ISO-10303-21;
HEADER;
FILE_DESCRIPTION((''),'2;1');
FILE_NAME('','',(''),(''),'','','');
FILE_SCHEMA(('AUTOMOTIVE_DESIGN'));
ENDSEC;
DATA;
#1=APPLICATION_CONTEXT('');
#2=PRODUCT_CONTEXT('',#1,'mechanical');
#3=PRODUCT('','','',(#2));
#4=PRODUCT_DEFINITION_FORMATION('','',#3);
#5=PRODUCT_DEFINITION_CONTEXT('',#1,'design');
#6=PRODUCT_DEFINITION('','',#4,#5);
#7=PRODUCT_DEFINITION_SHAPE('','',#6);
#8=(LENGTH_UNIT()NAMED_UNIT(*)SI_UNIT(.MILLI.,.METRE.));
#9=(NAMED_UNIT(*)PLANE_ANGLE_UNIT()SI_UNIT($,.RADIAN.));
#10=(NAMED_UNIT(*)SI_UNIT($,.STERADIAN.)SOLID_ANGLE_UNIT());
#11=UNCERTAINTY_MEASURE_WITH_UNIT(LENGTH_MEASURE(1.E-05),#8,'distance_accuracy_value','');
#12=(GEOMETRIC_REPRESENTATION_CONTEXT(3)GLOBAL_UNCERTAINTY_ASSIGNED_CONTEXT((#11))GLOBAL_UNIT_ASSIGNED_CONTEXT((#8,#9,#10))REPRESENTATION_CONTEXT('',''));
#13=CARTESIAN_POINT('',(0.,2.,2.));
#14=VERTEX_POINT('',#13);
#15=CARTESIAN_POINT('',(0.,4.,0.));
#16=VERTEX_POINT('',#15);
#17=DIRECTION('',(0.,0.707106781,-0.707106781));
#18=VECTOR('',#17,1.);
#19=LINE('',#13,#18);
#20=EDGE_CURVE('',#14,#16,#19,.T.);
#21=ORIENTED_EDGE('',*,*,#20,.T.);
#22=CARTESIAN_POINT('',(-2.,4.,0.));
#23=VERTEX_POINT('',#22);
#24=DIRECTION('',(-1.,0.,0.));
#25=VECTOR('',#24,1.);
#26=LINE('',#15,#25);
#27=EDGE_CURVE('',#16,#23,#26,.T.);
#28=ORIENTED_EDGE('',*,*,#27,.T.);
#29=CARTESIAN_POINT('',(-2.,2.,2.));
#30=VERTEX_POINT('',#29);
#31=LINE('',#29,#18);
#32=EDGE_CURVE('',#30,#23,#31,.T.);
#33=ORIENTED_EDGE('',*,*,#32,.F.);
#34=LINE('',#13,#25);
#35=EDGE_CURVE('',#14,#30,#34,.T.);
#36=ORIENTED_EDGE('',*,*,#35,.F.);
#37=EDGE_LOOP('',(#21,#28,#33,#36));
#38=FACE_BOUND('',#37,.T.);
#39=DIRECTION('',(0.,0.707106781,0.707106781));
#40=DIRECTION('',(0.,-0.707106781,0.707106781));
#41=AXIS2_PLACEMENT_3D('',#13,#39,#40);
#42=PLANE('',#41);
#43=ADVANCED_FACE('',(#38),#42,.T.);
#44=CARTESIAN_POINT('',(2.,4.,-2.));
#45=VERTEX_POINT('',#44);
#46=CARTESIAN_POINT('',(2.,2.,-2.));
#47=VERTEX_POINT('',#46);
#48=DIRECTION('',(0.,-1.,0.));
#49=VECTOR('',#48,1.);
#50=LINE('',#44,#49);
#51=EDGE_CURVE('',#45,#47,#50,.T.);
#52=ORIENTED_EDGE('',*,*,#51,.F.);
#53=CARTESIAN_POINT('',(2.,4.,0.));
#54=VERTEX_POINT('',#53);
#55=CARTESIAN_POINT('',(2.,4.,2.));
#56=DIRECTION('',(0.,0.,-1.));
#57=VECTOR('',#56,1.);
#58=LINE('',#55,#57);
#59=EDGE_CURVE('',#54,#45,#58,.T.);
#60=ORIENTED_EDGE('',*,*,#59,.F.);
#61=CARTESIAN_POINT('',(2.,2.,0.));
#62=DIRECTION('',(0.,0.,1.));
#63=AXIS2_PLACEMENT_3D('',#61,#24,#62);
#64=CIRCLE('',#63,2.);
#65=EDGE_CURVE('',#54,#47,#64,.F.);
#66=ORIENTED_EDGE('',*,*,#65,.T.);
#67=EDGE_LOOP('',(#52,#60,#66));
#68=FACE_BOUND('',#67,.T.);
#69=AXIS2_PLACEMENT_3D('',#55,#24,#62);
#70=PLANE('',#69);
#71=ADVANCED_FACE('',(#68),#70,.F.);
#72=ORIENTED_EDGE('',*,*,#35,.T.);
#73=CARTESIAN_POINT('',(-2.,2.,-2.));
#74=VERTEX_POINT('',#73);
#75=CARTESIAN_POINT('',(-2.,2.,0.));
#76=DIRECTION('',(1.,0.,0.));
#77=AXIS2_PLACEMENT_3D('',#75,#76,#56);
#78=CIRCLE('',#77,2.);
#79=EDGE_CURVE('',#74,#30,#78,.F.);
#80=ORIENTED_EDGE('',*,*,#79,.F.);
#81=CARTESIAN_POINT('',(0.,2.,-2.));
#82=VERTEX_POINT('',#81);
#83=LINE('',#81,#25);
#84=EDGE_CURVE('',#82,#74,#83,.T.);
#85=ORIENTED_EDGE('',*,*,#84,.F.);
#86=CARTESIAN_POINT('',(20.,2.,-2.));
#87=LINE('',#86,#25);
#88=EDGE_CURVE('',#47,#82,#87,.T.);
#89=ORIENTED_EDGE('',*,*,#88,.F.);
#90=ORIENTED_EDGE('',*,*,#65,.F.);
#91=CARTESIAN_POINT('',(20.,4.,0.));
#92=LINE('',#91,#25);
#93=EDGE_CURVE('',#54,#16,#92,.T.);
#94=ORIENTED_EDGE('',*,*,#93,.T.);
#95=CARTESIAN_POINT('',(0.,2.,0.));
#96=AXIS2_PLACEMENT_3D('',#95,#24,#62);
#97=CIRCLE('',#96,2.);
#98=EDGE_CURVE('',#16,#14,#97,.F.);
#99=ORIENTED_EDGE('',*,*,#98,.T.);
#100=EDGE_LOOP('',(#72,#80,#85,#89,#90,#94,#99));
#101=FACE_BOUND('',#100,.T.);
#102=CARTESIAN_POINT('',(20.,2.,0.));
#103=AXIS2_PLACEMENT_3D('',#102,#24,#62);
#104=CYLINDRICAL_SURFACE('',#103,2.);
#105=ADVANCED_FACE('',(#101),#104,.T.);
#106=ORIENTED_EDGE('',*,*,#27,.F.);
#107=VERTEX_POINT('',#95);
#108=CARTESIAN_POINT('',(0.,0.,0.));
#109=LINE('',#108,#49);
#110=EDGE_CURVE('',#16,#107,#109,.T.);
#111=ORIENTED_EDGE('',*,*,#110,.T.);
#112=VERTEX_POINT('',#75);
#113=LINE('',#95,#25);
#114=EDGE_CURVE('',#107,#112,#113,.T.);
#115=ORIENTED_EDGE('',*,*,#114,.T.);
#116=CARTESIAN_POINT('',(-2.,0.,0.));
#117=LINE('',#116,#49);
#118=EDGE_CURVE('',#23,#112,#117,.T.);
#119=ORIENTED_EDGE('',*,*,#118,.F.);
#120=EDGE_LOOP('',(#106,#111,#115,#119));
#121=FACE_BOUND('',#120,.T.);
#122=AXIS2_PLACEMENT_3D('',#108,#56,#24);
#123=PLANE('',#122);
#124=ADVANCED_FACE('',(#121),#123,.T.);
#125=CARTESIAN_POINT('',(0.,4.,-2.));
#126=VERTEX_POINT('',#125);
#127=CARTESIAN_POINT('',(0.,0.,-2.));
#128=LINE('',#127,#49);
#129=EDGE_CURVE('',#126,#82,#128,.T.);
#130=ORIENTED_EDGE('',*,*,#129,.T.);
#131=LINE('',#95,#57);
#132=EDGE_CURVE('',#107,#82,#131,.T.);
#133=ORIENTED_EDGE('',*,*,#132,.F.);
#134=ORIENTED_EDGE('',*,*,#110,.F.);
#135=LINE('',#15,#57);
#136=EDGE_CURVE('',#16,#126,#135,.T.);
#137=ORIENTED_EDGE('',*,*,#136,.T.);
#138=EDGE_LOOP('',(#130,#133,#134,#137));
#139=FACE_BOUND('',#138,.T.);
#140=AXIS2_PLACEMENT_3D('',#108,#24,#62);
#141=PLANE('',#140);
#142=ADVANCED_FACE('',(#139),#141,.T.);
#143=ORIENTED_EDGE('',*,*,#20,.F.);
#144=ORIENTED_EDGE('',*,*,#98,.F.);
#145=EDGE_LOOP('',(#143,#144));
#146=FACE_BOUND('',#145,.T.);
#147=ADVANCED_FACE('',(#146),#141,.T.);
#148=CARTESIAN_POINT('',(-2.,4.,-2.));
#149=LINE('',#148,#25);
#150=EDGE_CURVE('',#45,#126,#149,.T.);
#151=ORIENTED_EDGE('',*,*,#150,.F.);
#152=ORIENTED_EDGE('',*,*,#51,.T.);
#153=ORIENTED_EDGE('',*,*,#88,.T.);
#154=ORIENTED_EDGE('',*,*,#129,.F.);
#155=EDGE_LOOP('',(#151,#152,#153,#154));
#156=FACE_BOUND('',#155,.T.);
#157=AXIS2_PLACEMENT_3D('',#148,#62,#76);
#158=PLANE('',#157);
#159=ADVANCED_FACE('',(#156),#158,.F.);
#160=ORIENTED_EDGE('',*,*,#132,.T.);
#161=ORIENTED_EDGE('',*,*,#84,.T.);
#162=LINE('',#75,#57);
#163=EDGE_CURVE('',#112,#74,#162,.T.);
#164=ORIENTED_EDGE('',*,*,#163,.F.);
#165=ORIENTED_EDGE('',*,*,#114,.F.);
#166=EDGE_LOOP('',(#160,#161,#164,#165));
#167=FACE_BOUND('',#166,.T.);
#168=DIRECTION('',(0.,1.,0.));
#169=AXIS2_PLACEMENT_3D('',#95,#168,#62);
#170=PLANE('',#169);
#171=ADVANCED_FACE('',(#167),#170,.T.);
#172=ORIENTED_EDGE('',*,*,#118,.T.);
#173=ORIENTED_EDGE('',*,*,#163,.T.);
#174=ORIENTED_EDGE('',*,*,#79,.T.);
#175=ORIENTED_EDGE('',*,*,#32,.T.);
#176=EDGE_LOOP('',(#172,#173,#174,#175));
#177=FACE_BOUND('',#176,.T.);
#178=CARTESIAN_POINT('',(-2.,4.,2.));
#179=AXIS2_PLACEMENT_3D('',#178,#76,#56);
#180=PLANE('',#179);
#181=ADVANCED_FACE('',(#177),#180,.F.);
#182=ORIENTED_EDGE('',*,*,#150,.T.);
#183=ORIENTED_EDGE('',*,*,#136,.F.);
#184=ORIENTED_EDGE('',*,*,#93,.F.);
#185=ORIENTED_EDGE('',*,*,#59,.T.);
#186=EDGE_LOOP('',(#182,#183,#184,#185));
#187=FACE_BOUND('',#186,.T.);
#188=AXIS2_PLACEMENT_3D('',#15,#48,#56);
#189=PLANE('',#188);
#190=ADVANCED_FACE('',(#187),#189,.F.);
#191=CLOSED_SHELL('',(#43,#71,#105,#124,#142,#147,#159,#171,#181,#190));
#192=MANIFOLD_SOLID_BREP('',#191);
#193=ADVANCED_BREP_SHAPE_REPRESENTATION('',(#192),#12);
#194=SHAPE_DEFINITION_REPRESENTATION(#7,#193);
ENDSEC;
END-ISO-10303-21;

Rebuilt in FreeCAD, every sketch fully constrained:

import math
import FreeCAD as App
import Part
import Sketcher

V = App.Vector
Q = App.Units.Quantity


def add_polygon(sketch, points):
    """Adds a closed chain of lines whose ends are joined by coincident constraints."""
    first, n = sketch.GeometryCount, len(points)
    for a, b in zip(points, points[1:] + points[:1]):
        sketch.addGeometry(Part.LineSegment(App.Vector(*a, 0), App.Vector(*b, 0)), False)
    for i in range(n):
        sketch.addConstraint(Sketcher.Constraint("Coincident", first + i, 2, first + (i + 1) % n, 1))

doc = App.newDocument("Part")
body = doc.addObject("PartDesign::Body", "Body")

# Sketch on XZ plane
sketch1 = body.newObject("Sketcher::SketchObject", "Sketch")
sketch1.AttachmentSupport = (doc.getObject("XZ_Plane"), [""])
sketch1.MapMode = "FlatFace"
add_polygon(sketch1, [(-2, -2), (-2, 2), (2, 2), (2, -2)])  # lines 0-3
sketch1.addConstraint(Sketcher.Constraint("Vertical", 0))
sketch1.addConstraint(Sketcher.Constraint("Horizontal", 1))
sketch1.addConstraint(Sketcher.Constraint("Vertical", 2))
sketch1.addConstraint(Sketcher.Constraint("Horizontal", 3))
sketch1.addConstraint(Sketcher.Constraint("Symmetric", 0, 2, 2, 2, -1, 1))
sketch1.addConstraint(Sketcher.Constraint("Equal", 3, 0))
sketch1.addConstraint(Sketcher.Constraint("DistanceX", 1, 1, 1, 2, Q("4 mm")))
pad1 = body.newObject("PartDesign::Pad", "Pad")
pad1.Profile = sketch1
pad1.Length = 4
pad1.Reversed = True

# Sketch on YZ plane
sketch2 = body.newObject("Sketcher::SketchObject", "Sketch001")
sketch2.AttachmentSupport = (doc.getObject("YZ_Plane"), [""])
sketch2.MapMode = "FlatFace"
sketch2.AttachmentOffset = App.Placement(V(0, 0, -2), App.Rotation())
add_polygon(sketch2, [(4, 0), (2, 2), (4, 2)])  # lines 0-2
add_polygon(sketch2, [(4, -2), (2, -2), (2, 0), (4, 0)])  # lines 3-6
sketch2.addConstraint(Sketcher.Constraint("Horizontal", 1))
sketch2.addConstraint(Sketcher.Constraint("Vertical", 2))
sketch2.addConstraint(Sketcher.Constraint("Horizontal", 3))
sketch2.addConstraint(Sketcher.Constraint("Vertical", 4))
sketch2.addConstraint(Sketcher.Constraint("Horizontal", 5))
sketch2.addConstraint(Sketcher.Constraint("Vertical", 6))
sketch2.addConstraint(Sketcher.Constraint("Coincident", 5, 2, 2, 2))
sketch2.addConstraint(Sketcher.Constraint("Symmetric", 0, 2, 3, 2, -1))
sketch2.addConstraint(Sketcher.Constraint("PointOnObject", 2, 2, -1))
sketch2.addConstraint(Sketcher.Constraint("Equal", 5, 2))
sketch2.addConstraint(Sketcher.Constraint("DistanceX", 1, 1, 1, 2, Q("2 mm")))
sketch2.addConstraint(Sketcher.Constraint("DistanceX", -1, 1, 0, 2, Q("2 mm")))
pocket1 = body.newObject("PartDesign::Pocket", "Pocket")
pocket1.Profile = sketch2
pocket1.Length = 2
pocket1.Reversed = True

# Sketch on YZ plane
sketch3 = body.newObject("Sketcher::SketchObject", "Sketch002")
sketch3.AttachmentSupport = (doc.getObject("YZ_Plane"), [""])
sketch3.MapMode = "FlatFace"
sketch3.addGeometry(Part.LineSegment(V(4, 2, 0), V(4, 0, 0)), False)
sketch3.addGeometry(Part.ArcOfCircle(Part.Circle(V(2, 0, 0), V(0, 0, 1), 2), math.radians(0), math.radians(90)), False)
sketch3.addGeometry(Part.LineSegment(V(2, 2, 0), V(4, 2, 0)), False)
sketch3.addGeometry(Part.LineSegment(V(0, 2, 0), V(2, 2, 0)), False)
sketch3.addGeometry(Part.ArcOfCircle(Part.Circle(V(2, 0, 0), V(0, 0, 1), 2), math.radians(90), math.radians(180)), False)
sketch3.addGeometry(Part.LineSegment(V(0, 0, 0), V(0, 2, 0)), False)
sketch3.addGeometry(Part.LineSegment(V(0, -2, 0), V(0, 0, 0)), False)
sketch3.addGeometry(Part.ArcOfCircle(Part.Circle(V(2, 0, 0), V(0, 0, 1), 2), math.radians(-180), math.radians(-90)), False)
sketch3.addGeometry(Part.LineSegment(V(2, -2, 0), V(0, -2, 0)), False)
sketch3.addConstraint(Sketcher.Constraint("Tangent", 0, 2, 1, 1))
sketch3.addConstraint(Sketcher.Constraint("Tangent", 1, 2, 2, 1))
sketch3.addConstraint(Sketcher.Constraint("Coincident", 2, 2, 0, 1))
sketch3.addConstraint(Sketcher.Constraint("Tangent", 3, 2, 4, 1))
sketch3.addConstraint(Sketcher.Constraint("Tangent", 4, 2, 5, 1))
sketch3.addConstraint(Sketcher.Constraint("Coincident", 5, 2, 3, 1))
sketch3.addConstraint(Sketcher.Constraint("Tangent", 6, 2, 7, 1))
sketch3.addConstraint(Sketcher.Constraint("Tangent", 7, 2, 8, 1))
sketch3.addConstraint(Sketcher.Constraint("Coincident", 8, 2, 6, 1))
sketch3.addConstraint(Sketcher.Constraint("Vertical", 0))
sketch3.addConstraint(Sketcher.Constraint("Horizontal", 2))
sketch3.addConstraint(Sketcher.Constraint("Horizontal", 3))
sketch3.addConstraint(Sketcher.Constraint("Vertical", 5))
sketch3.addConstraint(Sketcher.Constraint("Vertical", 6))
sketch3.addConstraint(Sketcher.Constraint("Horizontal", 8))
sketch3.addConstraint(Sketcher.Constraint("Coincident", 4, 2, -1, 1))
sketch3.addConstraint(Sketcher.Constraint("Coincident", 6, 2, -1, 1))
sketch3.addConstraint(Sketcher.Constraint("Coincident", 4, 3, 1, 3))
sketch3.addConstraint(Sketcher.Constraint("Equal", 1, 4))
sketch3.addConstraint(Sketcher.Constraint("Equal", 4, 7))
sketch3.addConstraint(Sketcher.Constraint("Radius", 1, Q("2 mm")))
pocket2 = body.newObject("PartDesign::Pocket", "Pocket001")
pocket2.Profile = sketch3
pocket2.Length = 40
pocket2.Midplane = True

doc.recompute()
